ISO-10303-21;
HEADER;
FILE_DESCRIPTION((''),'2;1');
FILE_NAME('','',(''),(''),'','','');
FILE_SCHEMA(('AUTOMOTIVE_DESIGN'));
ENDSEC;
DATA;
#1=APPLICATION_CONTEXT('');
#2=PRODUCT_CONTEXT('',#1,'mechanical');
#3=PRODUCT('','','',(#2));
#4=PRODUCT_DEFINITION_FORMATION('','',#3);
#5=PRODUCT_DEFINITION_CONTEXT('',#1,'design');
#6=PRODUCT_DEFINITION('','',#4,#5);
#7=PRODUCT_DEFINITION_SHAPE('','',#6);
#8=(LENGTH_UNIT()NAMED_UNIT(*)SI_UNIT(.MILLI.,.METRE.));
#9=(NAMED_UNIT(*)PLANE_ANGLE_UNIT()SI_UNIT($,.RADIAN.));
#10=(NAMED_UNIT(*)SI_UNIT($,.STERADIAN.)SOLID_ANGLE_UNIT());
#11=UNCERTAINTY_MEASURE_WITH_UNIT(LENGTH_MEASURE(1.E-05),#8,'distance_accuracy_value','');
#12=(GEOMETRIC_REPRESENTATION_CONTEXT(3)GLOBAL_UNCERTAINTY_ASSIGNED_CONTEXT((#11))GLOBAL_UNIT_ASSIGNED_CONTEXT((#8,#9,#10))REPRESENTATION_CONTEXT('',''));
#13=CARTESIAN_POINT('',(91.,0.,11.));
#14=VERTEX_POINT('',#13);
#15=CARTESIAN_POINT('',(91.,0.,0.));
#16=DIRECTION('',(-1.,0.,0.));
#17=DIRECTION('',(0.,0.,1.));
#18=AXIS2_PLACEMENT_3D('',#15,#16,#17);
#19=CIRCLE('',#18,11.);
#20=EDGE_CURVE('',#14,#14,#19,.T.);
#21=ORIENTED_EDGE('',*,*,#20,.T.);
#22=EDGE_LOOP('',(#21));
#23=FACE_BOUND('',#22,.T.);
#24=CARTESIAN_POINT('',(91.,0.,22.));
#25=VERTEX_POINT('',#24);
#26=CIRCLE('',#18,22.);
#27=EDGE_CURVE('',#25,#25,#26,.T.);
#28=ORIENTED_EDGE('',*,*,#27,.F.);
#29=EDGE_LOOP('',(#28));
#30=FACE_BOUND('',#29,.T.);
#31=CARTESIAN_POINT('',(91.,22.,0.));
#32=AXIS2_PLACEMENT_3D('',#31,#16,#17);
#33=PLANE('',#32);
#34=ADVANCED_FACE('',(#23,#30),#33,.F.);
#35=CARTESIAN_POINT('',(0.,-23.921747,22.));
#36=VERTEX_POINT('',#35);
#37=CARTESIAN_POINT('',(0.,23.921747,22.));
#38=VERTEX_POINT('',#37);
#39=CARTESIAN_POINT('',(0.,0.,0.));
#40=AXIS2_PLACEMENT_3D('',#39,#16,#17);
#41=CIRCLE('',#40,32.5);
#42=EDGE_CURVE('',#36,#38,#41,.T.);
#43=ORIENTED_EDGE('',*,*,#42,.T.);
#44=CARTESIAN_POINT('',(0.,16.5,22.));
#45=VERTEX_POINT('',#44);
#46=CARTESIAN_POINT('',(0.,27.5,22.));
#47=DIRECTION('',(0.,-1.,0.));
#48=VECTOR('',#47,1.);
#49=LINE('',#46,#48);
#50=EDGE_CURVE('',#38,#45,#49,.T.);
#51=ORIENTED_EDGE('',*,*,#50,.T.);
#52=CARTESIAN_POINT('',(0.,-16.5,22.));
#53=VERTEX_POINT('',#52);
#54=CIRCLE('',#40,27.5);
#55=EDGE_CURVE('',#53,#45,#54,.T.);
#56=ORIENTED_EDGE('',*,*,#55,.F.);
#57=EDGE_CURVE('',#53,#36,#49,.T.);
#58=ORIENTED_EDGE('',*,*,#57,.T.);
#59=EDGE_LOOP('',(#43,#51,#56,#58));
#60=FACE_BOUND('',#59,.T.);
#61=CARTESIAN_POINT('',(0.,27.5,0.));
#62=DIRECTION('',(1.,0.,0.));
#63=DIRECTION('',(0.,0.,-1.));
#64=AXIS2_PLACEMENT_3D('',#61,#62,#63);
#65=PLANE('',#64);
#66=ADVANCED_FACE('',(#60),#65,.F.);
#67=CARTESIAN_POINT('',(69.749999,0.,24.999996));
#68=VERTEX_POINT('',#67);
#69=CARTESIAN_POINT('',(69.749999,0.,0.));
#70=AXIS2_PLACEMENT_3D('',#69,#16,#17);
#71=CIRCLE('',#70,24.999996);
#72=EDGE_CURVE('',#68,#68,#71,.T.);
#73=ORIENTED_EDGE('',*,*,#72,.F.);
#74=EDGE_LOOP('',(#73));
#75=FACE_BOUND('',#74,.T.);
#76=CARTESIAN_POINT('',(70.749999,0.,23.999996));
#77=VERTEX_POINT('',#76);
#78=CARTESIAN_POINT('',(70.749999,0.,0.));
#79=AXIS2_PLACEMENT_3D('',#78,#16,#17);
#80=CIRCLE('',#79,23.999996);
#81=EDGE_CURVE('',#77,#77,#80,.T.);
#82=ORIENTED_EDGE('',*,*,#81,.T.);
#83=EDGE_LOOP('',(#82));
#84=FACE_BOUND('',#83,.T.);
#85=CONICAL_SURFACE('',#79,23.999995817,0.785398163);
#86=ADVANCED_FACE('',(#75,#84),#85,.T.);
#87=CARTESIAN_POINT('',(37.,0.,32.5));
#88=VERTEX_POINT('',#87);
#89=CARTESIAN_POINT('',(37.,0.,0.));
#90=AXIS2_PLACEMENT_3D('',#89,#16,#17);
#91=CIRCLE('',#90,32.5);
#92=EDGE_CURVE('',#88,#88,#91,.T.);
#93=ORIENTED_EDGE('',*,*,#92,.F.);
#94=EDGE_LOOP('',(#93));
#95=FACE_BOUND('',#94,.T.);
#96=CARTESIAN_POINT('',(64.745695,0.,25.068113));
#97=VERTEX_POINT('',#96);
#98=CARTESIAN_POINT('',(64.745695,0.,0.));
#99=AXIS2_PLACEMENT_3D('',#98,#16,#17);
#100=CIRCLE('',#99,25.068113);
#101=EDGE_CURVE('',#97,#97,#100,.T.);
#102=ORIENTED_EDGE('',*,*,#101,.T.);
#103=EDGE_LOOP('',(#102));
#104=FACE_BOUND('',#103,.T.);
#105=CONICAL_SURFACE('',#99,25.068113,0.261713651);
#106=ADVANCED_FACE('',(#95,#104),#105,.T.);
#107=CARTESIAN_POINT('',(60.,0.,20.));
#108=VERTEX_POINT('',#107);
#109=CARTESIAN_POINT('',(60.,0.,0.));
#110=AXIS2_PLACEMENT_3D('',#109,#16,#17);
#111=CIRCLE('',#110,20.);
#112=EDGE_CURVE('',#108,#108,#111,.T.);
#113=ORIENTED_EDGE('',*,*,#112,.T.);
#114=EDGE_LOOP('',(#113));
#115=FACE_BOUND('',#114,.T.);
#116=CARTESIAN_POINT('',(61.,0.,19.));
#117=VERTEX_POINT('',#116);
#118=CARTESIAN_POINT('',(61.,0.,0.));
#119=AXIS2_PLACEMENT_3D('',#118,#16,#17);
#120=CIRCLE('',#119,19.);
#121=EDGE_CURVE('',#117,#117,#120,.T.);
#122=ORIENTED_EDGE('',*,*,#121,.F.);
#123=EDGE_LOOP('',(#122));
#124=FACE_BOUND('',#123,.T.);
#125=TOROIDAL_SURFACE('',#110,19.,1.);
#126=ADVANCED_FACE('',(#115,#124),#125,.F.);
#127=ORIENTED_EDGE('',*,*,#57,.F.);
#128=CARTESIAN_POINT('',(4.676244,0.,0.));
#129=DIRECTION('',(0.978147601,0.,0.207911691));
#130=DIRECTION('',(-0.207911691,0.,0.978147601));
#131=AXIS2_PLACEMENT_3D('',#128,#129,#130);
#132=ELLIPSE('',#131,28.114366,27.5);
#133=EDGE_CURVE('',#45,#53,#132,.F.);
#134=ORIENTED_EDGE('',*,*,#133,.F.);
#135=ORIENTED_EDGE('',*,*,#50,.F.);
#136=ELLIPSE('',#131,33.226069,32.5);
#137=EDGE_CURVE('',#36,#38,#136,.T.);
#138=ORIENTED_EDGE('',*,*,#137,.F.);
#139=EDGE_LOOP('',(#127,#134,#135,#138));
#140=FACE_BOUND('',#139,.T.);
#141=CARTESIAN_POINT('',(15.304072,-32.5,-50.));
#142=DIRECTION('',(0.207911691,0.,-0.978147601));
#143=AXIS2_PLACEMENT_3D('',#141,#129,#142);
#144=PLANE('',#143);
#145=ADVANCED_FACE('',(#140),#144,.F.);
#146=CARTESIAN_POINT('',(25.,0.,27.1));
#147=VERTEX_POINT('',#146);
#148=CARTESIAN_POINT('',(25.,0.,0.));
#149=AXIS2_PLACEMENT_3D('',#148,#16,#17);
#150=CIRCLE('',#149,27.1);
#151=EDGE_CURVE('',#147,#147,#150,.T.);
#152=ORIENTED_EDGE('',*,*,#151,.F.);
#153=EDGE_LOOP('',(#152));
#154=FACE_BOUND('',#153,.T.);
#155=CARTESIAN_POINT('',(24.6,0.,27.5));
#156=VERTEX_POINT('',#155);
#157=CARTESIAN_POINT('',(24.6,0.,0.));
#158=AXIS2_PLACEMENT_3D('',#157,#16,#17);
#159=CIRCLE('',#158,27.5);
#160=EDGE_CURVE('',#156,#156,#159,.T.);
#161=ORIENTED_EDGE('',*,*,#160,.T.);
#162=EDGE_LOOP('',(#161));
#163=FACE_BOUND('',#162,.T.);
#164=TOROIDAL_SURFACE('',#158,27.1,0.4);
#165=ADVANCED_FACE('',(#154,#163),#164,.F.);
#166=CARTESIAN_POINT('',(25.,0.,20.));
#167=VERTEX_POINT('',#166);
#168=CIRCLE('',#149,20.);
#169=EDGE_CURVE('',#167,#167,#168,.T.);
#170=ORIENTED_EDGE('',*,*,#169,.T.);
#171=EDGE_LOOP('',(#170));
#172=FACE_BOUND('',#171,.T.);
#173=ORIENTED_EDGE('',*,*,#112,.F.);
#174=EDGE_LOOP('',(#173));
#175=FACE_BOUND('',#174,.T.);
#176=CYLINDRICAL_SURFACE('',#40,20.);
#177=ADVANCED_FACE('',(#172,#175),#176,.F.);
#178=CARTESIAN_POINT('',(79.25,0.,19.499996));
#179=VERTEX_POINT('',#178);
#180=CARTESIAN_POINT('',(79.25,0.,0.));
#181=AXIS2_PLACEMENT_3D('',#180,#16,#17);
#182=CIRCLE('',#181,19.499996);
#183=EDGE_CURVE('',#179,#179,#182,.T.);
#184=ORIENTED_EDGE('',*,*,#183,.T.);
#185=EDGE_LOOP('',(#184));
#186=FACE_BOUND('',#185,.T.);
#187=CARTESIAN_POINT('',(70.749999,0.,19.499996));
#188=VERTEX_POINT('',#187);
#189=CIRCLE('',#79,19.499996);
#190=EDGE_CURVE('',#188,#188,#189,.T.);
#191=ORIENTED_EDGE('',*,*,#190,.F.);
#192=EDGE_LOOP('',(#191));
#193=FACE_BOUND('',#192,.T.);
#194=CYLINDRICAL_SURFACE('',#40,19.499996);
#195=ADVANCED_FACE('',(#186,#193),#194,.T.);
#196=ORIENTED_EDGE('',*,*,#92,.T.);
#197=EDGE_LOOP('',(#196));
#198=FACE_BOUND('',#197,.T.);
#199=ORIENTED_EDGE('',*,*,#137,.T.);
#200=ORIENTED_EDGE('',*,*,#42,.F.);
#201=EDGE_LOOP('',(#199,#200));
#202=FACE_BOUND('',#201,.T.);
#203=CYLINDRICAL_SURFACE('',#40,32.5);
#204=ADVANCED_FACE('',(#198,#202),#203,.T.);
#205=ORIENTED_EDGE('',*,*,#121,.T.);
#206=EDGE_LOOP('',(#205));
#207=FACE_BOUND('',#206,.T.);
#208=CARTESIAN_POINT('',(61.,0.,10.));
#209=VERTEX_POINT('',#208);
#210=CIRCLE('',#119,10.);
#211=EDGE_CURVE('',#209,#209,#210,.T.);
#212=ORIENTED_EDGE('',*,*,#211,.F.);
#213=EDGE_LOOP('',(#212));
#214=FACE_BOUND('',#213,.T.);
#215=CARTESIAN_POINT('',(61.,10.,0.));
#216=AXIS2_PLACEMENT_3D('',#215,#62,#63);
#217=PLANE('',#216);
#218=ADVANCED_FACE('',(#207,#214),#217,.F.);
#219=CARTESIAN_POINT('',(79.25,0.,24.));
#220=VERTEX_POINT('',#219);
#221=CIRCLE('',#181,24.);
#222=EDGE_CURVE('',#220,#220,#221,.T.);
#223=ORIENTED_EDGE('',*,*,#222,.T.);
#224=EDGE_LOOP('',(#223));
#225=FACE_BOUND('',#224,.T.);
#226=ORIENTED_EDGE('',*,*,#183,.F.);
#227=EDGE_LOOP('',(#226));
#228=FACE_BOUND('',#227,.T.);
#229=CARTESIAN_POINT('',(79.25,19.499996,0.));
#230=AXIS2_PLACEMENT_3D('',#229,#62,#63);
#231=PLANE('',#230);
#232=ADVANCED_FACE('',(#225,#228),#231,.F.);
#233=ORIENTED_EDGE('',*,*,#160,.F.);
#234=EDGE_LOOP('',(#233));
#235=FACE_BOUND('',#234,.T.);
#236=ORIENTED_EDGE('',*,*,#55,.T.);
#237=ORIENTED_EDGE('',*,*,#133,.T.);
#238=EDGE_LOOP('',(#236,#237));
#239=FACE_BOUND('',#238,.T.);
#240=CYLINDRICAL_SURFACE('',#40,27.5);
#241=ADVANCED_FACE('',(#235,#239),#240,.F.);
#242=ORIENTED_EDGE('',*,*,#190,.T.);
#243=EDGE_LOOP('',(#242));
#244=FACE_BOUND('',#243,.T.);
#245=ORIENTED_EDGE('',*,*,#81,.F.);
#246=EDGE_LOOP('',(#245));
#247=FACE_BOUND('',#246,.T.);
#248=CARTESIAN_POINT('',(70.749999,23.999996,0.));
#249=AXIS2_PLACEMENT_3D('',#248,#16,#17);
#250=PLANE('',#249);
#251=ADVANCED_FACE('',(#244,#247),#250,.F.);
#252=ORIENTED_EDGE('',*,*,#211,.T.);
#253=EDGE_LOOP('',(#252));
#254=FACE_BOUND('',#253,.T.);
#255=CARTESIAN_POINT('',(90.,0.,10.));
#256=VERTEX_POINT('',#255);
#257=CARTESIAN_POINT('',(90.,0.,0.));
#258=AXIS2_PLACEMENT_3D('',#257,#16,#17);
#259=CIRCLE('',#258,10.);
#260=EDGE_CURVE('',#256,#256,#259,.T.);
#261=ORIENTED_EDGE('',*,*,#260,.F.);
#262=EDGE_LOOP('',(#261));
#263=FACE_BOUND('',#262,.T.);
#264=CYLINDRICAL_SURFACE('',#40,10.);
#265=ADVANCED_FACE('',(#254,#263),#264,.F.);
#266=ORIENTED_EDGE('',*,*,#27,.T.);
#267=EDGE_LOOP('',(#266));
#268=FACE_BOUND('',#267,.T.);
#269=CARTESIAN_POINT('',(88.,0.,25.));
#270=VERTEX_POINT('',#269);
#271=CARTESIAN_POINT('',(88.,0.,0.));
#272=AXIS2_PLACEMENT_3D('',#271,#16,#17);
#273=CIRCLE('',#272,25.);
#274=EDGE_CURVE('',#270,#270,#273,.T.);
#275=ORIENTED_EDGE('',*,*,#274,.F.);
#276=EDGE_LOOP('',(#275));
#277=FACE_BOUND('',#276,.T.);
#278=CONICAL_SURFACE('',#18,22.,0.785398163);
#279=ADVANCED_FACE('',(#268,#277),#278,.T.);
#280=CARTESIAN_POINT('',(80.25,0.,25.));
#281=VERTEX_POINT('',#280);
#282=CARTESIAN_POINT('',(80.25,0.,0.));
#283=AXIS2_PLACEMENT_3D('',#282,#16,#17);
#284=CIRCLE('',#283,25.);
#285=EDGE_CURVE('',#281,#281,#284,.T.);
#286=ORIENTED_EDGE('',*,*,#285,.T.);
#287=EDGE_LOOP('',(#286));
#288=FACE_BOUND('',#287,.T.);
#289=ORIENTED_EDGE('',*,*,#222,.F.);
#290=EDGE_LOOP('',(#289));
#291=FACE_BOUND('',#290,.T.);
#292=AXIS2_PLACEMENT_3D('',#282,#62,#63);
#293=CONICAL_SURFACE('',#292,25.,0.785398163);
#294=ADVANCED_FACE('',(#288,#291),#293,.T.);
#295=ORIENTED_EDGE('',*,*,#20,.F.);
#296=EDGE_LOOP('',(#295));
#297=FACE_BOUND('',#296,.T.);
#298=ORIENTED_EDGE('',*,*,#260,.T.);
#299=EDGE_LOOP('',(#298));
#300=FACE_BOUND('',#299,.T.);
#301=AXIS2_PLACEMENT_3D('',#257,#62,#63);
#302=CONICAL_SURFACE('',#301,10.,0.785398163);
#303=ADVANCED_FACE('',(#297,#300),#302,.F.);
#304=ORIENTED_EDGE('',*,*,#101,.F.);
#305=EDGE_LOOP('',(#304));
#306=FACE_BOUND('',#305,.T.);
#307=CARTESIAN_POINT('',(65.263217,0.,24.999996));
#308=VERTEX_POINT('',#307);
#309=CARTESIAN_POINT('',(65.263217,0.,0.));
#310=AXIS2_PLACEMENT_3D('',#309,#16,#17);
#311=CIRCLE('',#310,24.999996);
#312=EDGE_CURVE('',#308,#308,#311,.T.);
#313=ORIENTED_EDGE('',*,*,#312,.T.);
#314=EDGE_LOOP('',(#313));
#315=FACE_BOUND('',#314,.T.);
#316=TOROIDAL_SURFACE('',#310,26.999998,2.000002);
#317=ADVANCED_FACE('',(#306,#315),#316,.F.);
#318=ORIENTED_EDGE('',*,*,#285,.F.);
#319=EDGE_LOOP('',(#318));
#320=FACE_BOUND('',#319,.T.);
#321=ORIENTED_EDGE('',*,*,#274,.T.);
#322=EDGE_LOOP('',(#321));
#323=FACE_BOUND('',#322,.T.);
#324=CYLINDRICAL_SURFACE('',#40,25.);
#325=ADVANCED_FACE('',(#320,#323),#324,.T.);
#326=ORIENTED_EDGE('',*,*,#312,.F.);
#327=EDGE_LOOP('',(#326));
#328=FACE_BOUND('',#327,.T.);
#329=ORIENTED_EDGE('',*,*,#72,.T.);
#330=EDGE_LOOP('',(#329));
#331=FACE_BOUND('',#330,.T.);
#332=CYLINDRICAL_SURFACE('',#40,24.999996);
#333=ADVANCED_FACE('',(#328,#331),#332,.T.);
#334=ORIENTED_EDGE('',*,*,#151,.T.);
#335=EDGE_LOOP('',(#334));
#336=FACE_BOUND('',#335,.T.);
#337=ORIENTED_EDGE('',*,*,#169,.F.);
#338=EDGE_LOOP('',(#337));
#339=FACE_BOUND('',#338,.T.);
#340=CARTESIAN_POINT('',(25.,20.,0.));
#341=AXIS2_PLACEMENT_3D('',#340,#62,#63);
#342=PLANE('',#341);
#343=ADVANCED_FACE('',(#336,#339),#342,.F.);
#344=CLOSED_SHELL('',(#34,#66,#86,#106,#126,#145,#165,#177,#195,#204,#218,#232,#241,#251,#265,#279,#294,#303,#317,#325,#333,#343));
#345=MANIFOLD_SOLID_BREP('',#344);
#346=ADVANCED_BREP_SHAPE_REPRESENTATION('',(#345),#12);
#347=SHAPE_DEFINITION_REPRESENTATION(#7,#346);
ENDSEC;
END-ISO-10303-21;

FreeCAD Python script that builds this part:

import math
import FreeCAD as App
import Part
import Sketcher

V = App.Vector
Q = App.Units.Quantity


def add_polygon(sketch, points):
    """Adds a closed chain of lines whose ends are joined by coincident constraints."""
    first, n = sketch.GeometryCount, len(points)
    for a, b in zip(points, points[1:] + points[:1]):
        sketch.addGeometry(Part.LineSegment(App.Vector(*a, 0), App.Vector(*b, 0)), False)
    for i in range(n):
        sketch.addConstraint(Sketcher.Constraint("Coincident", first + i, 2, first + (i + 1) % n, 1))

doc = App.newDocument("Part")
body = doc.addObject("PartDesign::Body", "Body")

# Sketch on XY plane
sketch1 = body.newObject("Sketcher::SketchObject", "Sketch")
sketch1.AttachmentSupport = (doc.getObject("XY_Plane"), [""])
sketch1.MapMode = "FlatFace"
sketch1.addGeometry(Part.LineSegment(V(37, 32.5, 0), V(0, 32.5, 0)), False)
sketch1.addGeometry(Part.LineSegment(V(0, 32.5, 0), V(0, 27.5, 0)), False)
sketch1.addGeometry(Part.LineSegment(V(0, 27.5, 0), V(24.6, 27.5, 0)), False)
sketch1.addGeometry(Part.ArcOfCircle(Part.Circle(V(24.6, 27.1, 0), V(0, 0, 1), 0.4), math.radians(0), math.radians(90)), False)
sketch1.addGeometry(Part.LineSegment(V(25, 27.1, 0), V(25, 20, 0)), False)
sketch1.addGeometry(Part.LineSegment(V(25, 20, 0), V(60, 20, 0)), False)
sketch1.addGeometry(Part.ArcOfCircle(Part.Circle(V(60, 19, 0), V(0, 0, 1), 1), math.radians(0), math.radians(90)), False)
sketch1.addGeometry(Part.LineSegment(V(61, 19, 0), V(61, 10, 0)), False)
sketch1.addGeometry(Part.LineSegment(V(61, 10, 0), V(90, 10, 0)), False)
sketch1.addGeometry(Part.LineSegment(V(90, 10, 0), V(91, 11, 0)), False)
sketch1.addGeometry(Part.LineSegment(V(91, 11, 0), V(91, 22, 0)), False)
sketch1.addGeometry(Part.LineSegment(V(91, 22, 0), V(88, 25, 0)), False)
sketch1.addGeometry(Part.LineSegment(V(88, 25, 0), V(80.25, 25, 0)), False)
sketch1.addGeometry(Part.LineSegment(V(80.25, 25, 0), V(79.25, 24, 0)), False)
sketch1.addGeometry(Part.LineSegment(V(79.25, 24, 0), V(79.25, 19.5, 0)), False)
sketch1.addGeometry(Part.LineSegment(V(79.25, 19.5, 0), V(70.75, 19.5, 0)), False)
sketch1.addGeometry(Part.LineSegment(V(70.75, 19.5, 0), V(70.75, 24, 0)), False)
sketch1.addGeometry(Part.LineSegment(V(70.75, 24, 0), V(69.75, 25, 0)), False)
sketch1.addGeometry(Part.LineSegment(V(69.75, 25, 0), V(65.26, 25, 0)), False)
sketch1.addGeometry(Part.ArcOfCircle(Part.Circle(V(65.26, 27, 0), V(0, 0, 1), 2), math.radians(-105), math.radians(-90)), False)
sketch1.addGeometry(Part.LineSegment(V(64.75, 25.07, 0), V(37, 32.5, 0)), False)
sketch1.addConstraint(Sketcher.Constraint("Coincident", 0, 2, 1, 1))
sketch1.addConstraint(Sketcher.Constraint("Coincident", 1, 2, 2, 1))
sketch1.addConstraint(Sketcher.Constraint("Tangent", 2, 2, 3, 2))
sketch1.addConstraint(Sketcher.Constraint("Tangent", 3, 1, 4, 1))
sketch1.addConstraint(Sketcher.Constraint("Coincident", 4, 2, 5, 1))
sketch1.addConstraint(Sketcher.Constraint("Tangent", 5, 2, 6, 2))
sketch1.addConstraint(Sketcher.Constraint("Tangent", 6, 1, 7, 1))
sketch1.addConstraint(Sketcher.Constraint("Coincident", 7, 2, 8, 1))
sketch1.addConstraint(Sketcher.Constraint("Coincident", 8, 2, 9, 1))
sketch1.addConstraint(Sketcher.Constraint("Coincident", 9, 2, 10, 1))
sketch1.addConstraint(Sketcher.Constraint("Coincident", 10, 2, 11, 1))
sketch1.addConstraint(Sketcher.Constraint("Coincident", 11, 2, 12, 1))
sketch1.addConstraint(Sketcher.Constraint("Coincident", 12, 2, 13, 1))
sketch1.addConstraint(Sketcher.Constraint("Coincident", 13, 2, 14, 1))
sketch1.addConstraint(Sketcher.Constraint("Coincident", 14, 2, 15, 1))
sketch1.addConstraint(Sketcher.Constraint("Coincident", 15, 2, 16, 1))
sketch1.addConstraint(Sketcher.Constraint("Coincident", 16, 2, 17, 1))
sketch1.addConstraint(Sketcher.Constraint("Coincident", 17, 2, 18, 1))
sketch1.addConstraint(Sketcher.Constraint("Tangent", 18, 2, 19, 2))
sketch1.addConstraint(Sketcher.Constraint("Coincident", 19, 1, 20, 1))
sketch1.addConstraint(Sketcher.Constraint("Coincident", 20, 2, 0, 1))
sketch1.addConstraint(Sketcher.Constraint("Horizontal", 0))
sketch1.addConstraint(Sketcher.Constraint("Vertical", 1))
sketch1.addConstraint(Sketcher.Constraint("Horizontal", 2))
sketch1.addConstraint(Sketcher.Constraint("Vertical", 4))
sketch1.addConstraint(Sketcher.Constraint("Horizontal", 5))
sketch1.addConstraint(Sketcher.Constraint("Vertical", 7))
sketch1.addConstraint(Sketcher.Constraint("Horizontal", 8))
sketch1.addConstraint(Sketcher.Constraint("Vertical", 10))
sketch1.addConstraint(Sketcher.Constraint("Horizontal", 12))
sketch1.addConstraint(Sketcher.Constraint("Vertical", 14))
sketch1.addConstraint(Sketcher.Constraint("Horizontal", 15))
sketch1.addConstraint(Sketcher.Constraint("Vertical", 16))
sketch1.addConstraint(Sketcher.Constraint("Horizontal", 18))
sketch1.addConstraint(Sketcher.Constraint("PointOnObject", 0, 2, -2))
sketch1.addConstraint(Sketcher.Constraint("Perpendicular", 9, 11))
sketch1.addConstraint(Sketcher.Constraint("Perpendicular", 11, 13))
sketch1.addConstraint(Sketcher.Constraint("Perpendicular", 13, 17))
sketch1.addConstraint(Sketcher.Constraint("Equal", 9, 13))
sketch1.addConstraint(Sketcher.Constraint("Equal", 13, 17))
sketch1.addConstraint(Sketcher.Constraint("Radius", 6, 1.0))
sketch1.addConstraint(Sketcher.Constraint("Radius", 3, 0.4))
sketch1.addConstraint(Sketcher.Constraint("DistanceX", 0, 2, 0, 1, 37.0))
sketch1.addConstraint(Sketcher.Constraint("DistanceX", 5, 1, 5, 2, 35.0))
sketch1.addConstraint(Sketcher.Constraint("DistanceX", 8, 1, 8, 2, 29.0))
sketch1.addConstraint(Sketcher.Constraint("DistanceY", 1, 2, 1, 1, 5.0))
sketch1.addConstraint(Sketcher.Constraint("DistanceY", 7, 2, 7, 1, 9.0))
sketch1.addConstraint(Sketcher.Constraint("DistanceY", 10, 1, 10, 2, 11.0))
sketch1.addConstraint(Sketcher.Constraint("Angle", 9, Q("45 deg")))
sketch1.addConstraint(Sketcher.Constraint("DistanceX", 2, 1, 2, 2, 24.6))
sketch1.addConstraint(Sketcher.Constraint("DistanceX", 15, 2, 15, 1, 8.500001))
sketch1.addConstraint(Sketcher.Constraint("DistanceY", 4, 2, 4, 1, 7.1))
sketch1.addConstraint(Sketcher.Constraint("DistanceY", 16, 1, 16, 2, 4.5))
sketch1.addConstraint(Sketcher.Constraint("DistanceY", -1, 1, 6, 3, 19.0))
sketch1.addConstraint(Sketcher.Constraint("DistanceX", -1, 1, 9, 2, 91.0))
sketch1.addConstraint(Sketcher.Constraint("DistanceX", -1, 1, 11, 2, 88.0))
sketch1.addConstraint(Sketcher.Constraint("DistanceX", 12, 2, 12, 1, 7.75))
sketch1.addConstraint(Sketcher.Constraint("Radius", 19, 2.000002))
sketch1.addConstraint(Sketcher.Constraint("DistanceX", 18, 2, 18, 1, 4.486782))
sketch1.addConstraint(Sketcher.Constraint("DistanceY", 14, 2, 14, 1, 4.500004))
sketch1.addConstraint(Sketcher.Constraint("Distance", 20, 28.723797))
revolution = body.newObject("PartDesign::Revolution", "Revolution")
revolution.Profile = sketch1
revolution.ReferenceAxis = (sketch1, ["H_Axis"])
revolution.Angle = 360

# Sketch on XZ plane
sketch2 = body.newObject("Sketcher::SketchObject", "Sketch001")
sketch2.AttachmentSupport = (doc.getObject("XZ_Plane"), [""])
sketch2.MapMode = "FlatFace"
add_polygon(sketch2, [(15, -50), (-25, -50), (-25, 50), (-6, 50)])  # lines 0-3
sketch2.addConstraint(Sketcher.Constraint("Horizontal", 0))
sketch2.addConstraint(Sketcher.Constraint("Vertical", 1))
sketch2.addConstraint(Sketcher.Constraint("Horizontal", 2))
sketch2.addConstraint(Sketcher.Constraint("DistanceY", 1, 1, 1, 2, 100.0))
sketch2.addConstraint(Sketcher.Constraint("Angle", 3, Q("-78 deg")))
sketch2.addConstraint(Sketcher.Constraint("DistanceX", 0, 2, -1, 1, 25.0))
sketch2.addConstraint(Sketcher.Constraint("DistanceY", 0, 2, -1, 1, 50.0))
sketch2.addConstraint(Sketcher.Constraint("DistanceX", 0, 2, 0, 1, 40.304072))
pocket1 = body.newObject("PartDesign::Pocket", "Pocket")
pocket1.Profile = sketch2
pocket1.Type = "ThroughAll"
pocket1.Midplane = True

doc.recompute()
